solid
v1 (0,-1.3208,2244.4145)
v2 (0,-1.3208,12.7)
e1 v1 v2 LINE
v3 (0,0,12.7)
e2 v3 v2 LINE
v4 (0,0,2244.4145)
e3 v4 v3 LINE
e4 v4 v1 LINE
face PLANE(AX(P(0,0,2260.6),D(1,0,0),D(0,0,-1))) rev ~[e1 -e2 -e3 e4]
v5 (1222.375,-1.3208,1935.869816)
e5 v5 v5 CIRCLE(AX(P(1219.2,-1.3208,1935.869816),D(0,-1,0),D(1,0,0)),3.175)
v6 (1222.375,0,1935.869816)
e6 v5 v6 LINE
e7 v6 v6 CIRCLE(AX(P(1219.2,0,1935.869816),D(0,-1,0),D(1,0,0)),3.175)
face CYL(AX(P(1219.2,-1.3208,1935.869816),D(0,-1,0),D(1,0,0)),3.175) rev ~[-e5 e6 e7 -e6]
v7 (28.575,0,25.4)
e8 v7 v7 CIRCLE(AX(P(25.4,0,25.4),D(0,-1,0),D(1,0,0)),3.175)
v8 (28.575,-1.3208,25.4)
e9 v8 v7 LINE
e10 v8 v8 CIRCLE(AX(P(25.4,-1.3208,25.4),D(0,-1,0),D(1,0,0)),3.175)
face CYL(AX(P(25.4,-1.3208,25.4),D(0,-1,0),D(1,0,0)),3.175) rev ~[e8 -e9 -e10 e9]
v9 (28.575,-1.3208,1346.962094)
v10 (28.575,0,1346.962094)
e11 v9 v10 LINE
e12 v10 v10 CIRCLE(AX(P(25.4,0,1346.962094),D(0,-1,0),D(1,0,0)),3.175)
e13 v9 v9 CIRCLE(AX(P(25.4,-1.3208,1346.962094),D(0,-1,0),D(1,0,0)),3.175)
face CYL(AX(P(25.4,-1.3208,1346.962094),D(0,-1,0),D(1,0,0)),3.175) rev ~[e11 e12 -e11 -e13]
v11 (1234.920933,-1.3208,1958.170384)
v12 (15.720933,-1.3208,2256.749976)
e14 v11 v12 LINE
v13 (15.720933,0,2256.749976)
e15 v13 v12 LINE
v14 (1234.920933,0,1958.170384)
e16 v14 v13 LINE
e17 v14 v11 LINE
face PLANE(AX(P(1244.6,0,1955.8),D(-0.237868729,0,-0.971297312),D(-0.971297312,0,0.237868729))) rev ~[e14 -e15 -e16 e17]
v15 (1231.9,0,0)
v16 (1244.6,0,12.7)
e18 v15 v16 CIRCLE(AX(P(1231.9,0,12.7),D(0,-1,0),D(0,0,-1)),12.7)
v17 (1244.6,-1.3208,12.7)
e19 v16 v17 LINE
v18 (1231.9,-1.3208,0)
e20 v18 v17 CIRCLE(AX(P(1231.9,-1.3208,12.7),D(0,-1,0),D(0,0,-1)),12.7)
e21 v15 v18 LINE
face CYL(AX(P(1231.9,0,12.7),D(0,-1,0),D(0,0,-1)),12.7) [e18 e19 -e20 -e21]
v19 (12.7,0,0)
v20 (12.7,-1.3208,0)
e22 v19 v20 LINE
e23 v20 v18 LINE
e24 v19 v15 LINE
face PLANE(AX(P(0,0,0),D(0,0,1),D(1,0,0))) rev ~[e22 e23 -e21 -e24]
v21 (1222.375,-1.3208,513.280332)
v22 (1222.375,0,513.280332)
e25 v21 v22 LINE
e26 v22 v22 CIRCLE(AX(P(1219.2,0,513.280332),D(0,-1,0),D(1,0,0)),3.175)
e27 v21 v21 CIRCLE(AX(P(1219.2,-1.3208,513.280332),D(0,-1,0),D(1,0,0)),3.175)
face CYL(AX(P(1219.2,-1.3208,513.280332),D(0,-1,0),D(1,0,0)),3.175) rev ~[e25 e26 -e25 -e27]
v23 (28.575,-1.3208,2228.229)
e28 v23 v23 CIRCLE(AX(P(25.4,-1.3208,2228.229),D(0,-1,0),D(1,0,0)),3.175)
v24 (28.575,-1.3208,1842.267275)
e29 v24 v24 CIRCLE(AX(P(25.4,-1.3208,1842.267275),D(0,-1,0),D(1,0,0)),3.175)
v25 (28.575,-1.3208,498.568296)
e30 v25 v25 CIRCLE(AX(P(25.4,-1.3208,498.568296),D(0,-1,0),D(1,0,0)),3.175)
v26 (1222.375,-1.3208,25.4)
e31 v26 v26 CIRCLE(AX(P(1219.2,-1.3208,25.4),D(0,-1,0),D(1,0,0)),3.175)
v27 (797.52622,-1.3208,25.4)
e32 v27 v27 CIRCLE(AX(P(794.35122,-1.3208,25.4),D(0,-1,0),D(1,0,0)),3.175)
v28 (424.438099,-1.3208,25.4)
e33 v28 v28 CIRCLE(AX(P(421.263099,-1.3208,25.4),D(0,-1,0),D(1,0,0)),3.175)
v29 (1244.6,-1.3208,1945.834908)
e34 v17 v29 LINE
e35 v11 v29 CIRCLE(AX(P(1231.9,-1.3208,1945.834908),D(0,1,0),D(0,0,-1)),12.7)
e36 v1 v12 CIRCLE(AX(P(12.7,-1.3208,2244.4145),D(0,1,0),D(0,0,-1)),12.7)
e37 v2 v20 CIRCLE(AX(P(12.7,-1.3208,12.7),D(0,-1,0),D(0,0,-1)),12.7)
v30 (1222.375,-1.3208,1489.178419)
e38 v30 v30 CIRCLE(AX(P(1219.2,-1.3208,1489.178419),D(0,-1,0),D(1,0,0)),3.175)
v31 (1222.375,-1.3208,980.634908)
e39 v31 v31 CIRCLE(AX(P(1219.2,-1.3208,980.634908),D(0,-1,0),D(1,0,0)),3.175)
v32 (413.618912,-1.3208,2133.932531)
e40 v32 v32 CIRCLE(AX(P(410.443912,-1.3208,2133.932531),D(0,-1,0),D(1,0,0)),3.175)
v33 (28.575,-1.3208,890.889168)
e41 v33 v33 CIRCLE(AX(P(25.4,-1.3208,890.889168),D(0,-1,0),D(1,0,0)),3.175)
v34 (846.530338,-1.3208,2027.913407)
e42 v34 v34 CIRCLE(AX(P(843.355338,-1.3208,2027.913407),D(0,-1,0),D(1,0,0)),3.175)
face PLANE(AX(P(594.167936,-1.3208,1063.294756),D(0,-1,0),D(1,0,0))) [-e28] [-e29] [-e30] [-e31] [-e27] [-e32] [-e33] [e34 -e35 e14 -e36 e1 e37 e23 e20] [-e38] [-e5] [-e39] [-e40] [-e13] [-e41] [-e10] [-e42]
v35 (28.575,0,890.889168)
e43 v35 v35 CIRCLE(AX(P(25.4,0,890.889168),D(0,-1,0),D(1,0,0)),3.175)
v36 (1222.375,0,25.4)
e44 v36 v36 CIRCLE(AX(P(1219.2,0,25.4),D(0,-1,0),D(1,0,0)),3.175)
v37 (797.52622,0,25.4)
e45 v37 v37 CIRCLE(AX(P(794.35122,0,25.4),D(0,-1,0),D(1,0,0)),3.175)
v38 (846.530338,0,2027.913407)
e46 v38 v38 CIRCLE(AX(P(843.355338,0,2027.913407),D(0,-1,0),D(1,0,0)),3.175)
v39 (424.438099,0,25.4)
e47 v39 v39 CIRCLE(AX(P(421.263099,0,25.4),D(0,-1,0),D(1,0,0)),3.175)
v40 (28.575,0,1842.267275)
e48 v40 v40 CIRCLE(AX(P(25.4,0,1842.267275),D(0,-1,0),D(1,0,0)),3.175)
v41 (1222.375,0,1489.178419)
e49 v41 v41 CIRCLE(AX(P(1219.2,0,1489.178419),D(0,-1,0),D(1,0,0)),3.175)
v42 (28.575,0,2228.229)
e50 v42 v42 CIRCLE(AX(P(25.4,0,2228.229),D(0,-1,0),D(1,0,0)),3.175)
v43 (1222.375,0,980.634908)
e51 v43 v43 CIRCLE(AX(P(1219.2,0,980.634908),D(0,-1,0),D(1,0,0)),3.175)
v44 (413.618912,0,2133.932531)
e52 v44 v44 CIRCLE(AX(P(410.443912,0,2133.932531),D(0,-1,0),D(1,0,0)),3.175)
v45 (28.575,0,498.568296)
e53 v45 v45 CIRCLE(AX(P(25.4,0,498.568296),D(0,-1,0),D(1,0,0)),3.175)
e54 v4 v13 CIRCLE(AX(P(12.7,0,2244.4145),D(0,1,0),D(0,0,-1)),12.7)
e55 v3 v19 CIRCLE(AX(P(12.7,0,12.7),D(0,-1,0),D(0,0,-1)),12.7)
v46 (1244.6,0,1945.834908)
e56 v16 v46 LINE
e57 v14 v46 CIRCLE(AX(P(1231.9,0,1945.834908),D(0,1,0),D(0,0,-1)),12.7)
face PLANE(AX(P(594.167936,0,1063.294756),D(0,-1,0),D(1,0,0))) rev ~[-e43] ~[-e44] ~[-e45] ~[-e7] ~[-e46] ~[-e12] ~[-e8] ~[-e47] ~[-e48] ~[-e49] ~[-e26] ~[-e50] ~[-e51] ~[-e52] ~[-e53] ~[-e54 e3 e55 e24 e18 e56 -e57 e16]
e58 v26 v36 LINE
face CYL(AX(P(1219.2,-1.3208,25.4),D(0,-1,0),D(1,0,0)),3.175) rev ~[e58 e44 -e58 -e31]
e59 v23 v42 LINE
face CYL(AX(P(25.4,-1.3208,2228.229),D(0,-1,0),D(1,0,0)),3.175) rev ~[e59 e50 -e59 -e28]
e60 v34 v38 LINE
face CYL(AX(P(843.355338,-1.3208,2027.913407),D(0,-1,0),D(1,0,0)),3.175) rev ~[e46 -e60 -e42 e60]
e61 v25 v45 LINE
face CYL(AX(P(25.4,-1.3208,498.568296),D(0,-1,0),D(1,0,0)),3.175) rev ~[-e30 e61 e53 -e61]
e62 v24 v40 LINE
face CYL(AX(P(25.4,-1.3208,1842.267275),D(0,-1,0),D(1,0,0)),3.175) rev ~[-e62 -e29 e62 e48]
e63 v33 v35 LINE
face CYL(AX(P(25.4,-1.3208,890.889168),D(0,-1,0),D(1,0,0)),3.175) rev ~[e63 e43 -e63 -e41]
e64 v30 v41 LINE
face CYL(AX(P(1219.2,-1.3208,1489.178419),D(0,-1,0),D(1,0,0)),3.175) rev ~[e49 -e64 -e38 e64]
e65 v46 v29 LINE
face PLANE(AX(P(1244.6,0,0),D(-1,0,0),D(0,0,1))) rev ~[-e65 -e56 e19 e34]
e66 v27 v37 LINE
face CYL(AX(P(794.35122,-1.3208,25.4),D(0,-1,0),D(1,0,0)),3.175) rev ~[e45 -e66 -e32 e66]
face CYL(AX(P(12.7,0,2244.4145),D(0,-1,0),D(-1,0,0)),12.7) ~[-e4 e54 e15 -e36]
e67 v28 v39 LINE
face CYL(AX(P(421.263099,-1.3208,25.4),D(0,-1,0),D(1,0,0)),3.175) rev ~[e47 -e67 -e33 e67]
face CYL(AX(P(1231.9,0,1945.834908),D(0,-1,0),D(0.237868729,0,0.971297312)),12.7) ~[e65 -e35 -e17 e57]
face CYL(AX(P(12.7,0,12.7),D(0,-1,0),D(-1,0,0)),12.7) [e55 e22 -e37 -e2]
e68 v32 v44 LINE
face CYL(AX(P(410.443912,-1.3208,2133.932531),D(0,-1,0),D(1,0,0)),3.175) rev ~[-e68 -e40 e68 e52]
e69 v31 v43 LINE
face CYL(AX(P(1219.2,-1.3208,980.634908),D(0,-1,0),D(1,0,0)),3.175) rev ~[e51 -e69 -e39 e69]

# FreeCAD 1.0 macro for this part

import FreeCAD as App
import Part
import Sketcher
Q = App.Units.Quantity


def edges_at(feature, points):
    """Names of the edges that pass closest to the given points."""
    edges = feature.Shape.Edges
    near = lambda p: min(range(len(edges)), key=lambda i: edges[i].distToShape(Part.Vertex(*p))[0])
    return sorted({f"Edge{near(p) + 1}" for p in points})

doc = App.newDocument("Part")
body = doc.addObject("PartDesign::Body", "Body")

# Sketch on XZ plane
sketch1 = doc.addObject("Sketcher::SketchObject", "Sketch")
body.addObject(sketch1)
sketch1.AttachmentSupport = (doc.XZ_Plane, [""])
sketch1.MapMode = "FlatFace"
sketch1.addGeometry(Part.LineSegment(App.Vector(0, 2261, 0), App.Vector(0, 0, 0)), False)
sketch1.addGeometry(Part.LineSegment(App.Vector(0, 0, 0), App.Vector(1245, 0, 0)), False)
sketch1.addGeometry(Part.LineSegment(App.Vector(1245, 0, 0), App.Vector(1245, 1956, 0)), False)
sketch1.addGeometry(Part.LineSegment(App.Vector(1245, 1956, 0), App.Vector(0, 2261, 0)), False)
sketch1.addConstraint(Sketcher.Constraint("Coincident", 0, 2, 1, 1))
sketch1.addConstraint(Sketcher.Constraint("Coincident", 1, 2, 2, 1))
sketch1.addConstraint(Sketcher.Constraint("Coincident", 2, 2, 3, 1))
sketch1.addConstraint(Sketcher.Constraint("Coincident", 3, 2, 0, 1))
sketch1.addConstraint(Sketcher.Constraint("Vertical", 0))
sketch1.addConstraint(Sketcher.Constraint("Horizontal", 1))
sketch1.addConstraint(Sketcher.Constraint("Vertical", 2))
sketch1.addConstraint(Sketcher.Constraint("Coincident", 0, 2, -1, 1))
sketch1.addConstraint(Sketcher.Constraint("DistanceX", 1, 1, 1, 2, Q("49 in")))
sketch1.addConstraint(Sketcher.Constraint("DistanceY", 0, 2, 0, 1, Q("89 in")))
sketch1.addConstraint(Sketcher.Constraint("DistanceY", 2, 1, 2, 2, Q("77 in")))
pad1 = doc.addObject("PartDesign::Pad", "Pad")
body.addObject(pad1)
pad1.Profile = sketch1
pad1.Length = Q("0.052 in")

# Sketch on XZ plane
sketch2 = doc.addObject("Sketcher::SketchObject", "Sketch001")
body.addObject(sketch2)
sketch2.AttachmentSupport = (doc.XZ_Plane, [""])
sketch2.MapMode = "FlatFace"
sketch2.AttachmentOffset = App.Placement(App.Vector(0, 0, 0.052 * 25.4), App.Rotation())
sketch2.addGeometry(Part.Circle(App.Vector(25.4, 2228.2, 0), App.Vector(0, 0, 1), 3.2), False)
sketch2.addGeometry(Part.Circle(App.Vector(1219.2, 1935.9, 0), App.Vector(0, 0, 1), 3.2), False)
sketch2.addGeometry(Part.Circle(App.Vector(410.4, 2133.9, 0), App.Vector(0, 0, 1), 3.2), False)
sketch2.addGeometry(Part.Circle(App.Vector(843.4, 2027.9, 0), App.Vector(0, 0, 1), 3.2), False)
sketch2.addGeometry(Part.Circle(App.Vector(1219.2, 25.4, 0), App.Vector(0, 0, 1), 3.2), False)
sketch2.addGeometry(Part.Circle(App.Vector(25.4, 25.4, 0), App.Vector(0, 0, 1), 3.2), False)
sketch2.addGeometry(Part.Circle(App.Vector(421.3, 25.4, 0), App.Vector(0, 0, 1), 3.2), False)
sketch2.addGeometry(Part.Circle(App.Vector(794.4, 25.4, 0), App.Vector(0, 0, 1), 3.2), False)
sketch2.addGeometry(Part.Circle(App.Vector(1219.2, 980.6, 0), App.Vector(0, 0, 1), 3.2), False)
sketch2.addGeometry(Part.Circle(App.Vector(1219.2, 1489.2, 0), App.Vector(0, 0, 1), 3.2), False)
sketch2.addGeometry(Part.Circle(App.Vector(1219.2, 513.3, 0), App.Vector(0, 0, 1), 3.2), False)
sketch2.addGeometry(Part.Circle(App.Vector(25.4, 1347, 0), App.Vector(0, 0, 1), 3.2), False)
sketch2.addGeometry(Part.Circle(App.Vector(25.4, 890.9, 0), App.Vector(0, 0, 1), 3.2), False)
sketch2.addGeometry(Part.Circle(App.Vector(25.4, 498.6, 0), App.Vector(0, 0, 1), 3.2), False)
sketch2.addGeometry(Part.Circle(App.Vector(25.4, 1842.3, 0), App.Vector(0, 0, 1), 3.2), False)
sketch2.addConstraint(Sketcher.Constraint("Equal", 0, 1))
sketch2.addConstraint(Sketcher.Constraint("Equal", 1, 2))
sketch2.addConstraint(Sketcher.Constraint("Equal", 2, 3))
sketch2.addConstraint(Sketcher.Constraint("Equal", 3, 4))
sketch2.addConstraint(Sketcher.Constraint("Equal", 4, 5))
sketch2.addConstraint(Sketcher.Constraint("Equal", 5, 6))
sketch2.addConstraint(Sketcher.Constraint("Equal", 6, 7))
sketch2.addConstraint(Sketcher.Constraint("Equal", 7, 8))
sketch2.addConstraint(Sketcher.Constraint("Equal", 8, 9))
sketch2.addConstraint(Sketcher.Constraint("Equal", 9, 10))
sketch2.addConstraint(Sketcher.Constraint("Equal", 10, 11))
sketch2.addConstraint(Sketcher.Constraint("Equal", 11, 12))
sketch2.addConstraint(Sketcher.Constraint("Equal", 12, 13))
sketch2.addConstraint(Sketcher.Constraint("Equal", 13, 14))
sketch2.addConstraint(Sketcher.Constraint("Horizontal", 4, 3, 5, 3))
sketch2.addConstraint(Sketcher.Constraint("Horizontal", 5, 3, 6, 3))
sketch2.addConstraint(Sketcher.Constraint("Horizontal", 6, 3, 7, 3))
sketch2.addConstraint(Sketcher.Constraint("Vertical", 1, 3, 4, 3))
sketch2.addConstraint(Sketcher.Constraint("Vertical", 0, 3, 5, 3))
sketch2.addConstraint(Sketcher.Constraint("Vertical", 4, 3, 8, 3))
sketch2.addConstraint(Sketcher.Constraint("Vertical", 8, 3, 9, 3))
sketch2.addConstraint(Sketcher.Constraint("Vertical", 9, 3, 10, 3))
sketch2.addConstraint(Sketcher.Constraint("Vertical", 5, 3, 11, 3))
sketch2.addConstraint(Sketcher.Constraint("Vertical", 11, 3, 12, 3))
sketch2.addConstraint(Sketcher.Constraint("Vertical", 12, 3, 13, 3))
sketch2.addConstraint(Sketcher.Constraint("Vertical", 13, 3, 14, 3))
sketch2.addConstraint(Sketcher.Constraint("Diameter", 0, Q("0.25 in")))
sketch2.addConstraint(Sketcher.Constraint("DistanceX", -1, 1, 0, 3, Q("1 in")))
sketch2.addConstraint(Sketcher.Constraint("DistanceX", -1, 1, 1, 3, Q("48 in")))
sketch2.addConstraint(Sketcher.Constraint("DistanceY", -1, 1, 4, 3, Q("1 in")))
sketch2.addConstraint(Sketcher.Constraint("DistanceY", -1, 1, 0, 3, Q("2228.229 mm")))
sketch2.addConstraint(Sketcher.Constraint("DistanceX", -1, 1, 6, 3, Q("421.263099 mm")))
sketch2.addConstraint(Sketcher.Constraint("DistanceY", 8, 3, 3, 3, Q("1047.278499 mm")))
sketch2.addConstraint(Sketcher.Constraint("DistanceY", 13, 3, 11, 3, Q("848.393798 mm")))
sketch2.addConstraint(Sketcher.Constraint("DistanceX", -1, 1, 2, 3, Q("410.443912 mm")))
sketch2.addConstraint(Sketcher.Constraint("DistanceY", -1, 1, 2, 3, Q("2133.932531 mm")))
sketch2.addConstraint(Sketcher.Constraint("DistanceX", -1, 1, 3, 3, Q("843.355338 mm")))
sketch2.addConstraint(Sketcher.Constraint("DistanceX", -1, 1, 7, 3, Q("794.35122 mm")))
sketch2.addConstraint(Sketcher.Constraint("DistanceY", -1, 1, 8, 3, Q("980.634908 mm")))
sketch2.addConstraint(Sketcher.Constraint("DistanceY", -1, 1, 9, 3, Q("1489.178419 mm")))
sketch2.addConstraint(Sketcher.Constraint("DistanceY", -1, 1, 10, 3, Q("513.280332 mm")))
sketch2.addConstraint(Sketcher.Constraint("DistanceY", -1, 1, 12, 3, Q("890.889168 mm")))
sketch2.addConstraint(Sketcher.Constraint("DistanceY", 1, 3, 3, 3, Q("92.043591 mm")))
sketch2.addConstraint(Sketcher.Constraint("DistanceY", 11, 3, 14, 3, Q("495.305181 mm")))
sketch2.addConstraint(Sketcher.Constraint("DistanceY", -1, 1, 11, 3, Q("1346.962094 mm")))
pocket1 = doc.addObject("PartDesign::Pocket", "Pocket")
body.addObject(pocket1)
pocket1.Profile = sketch2
pocket1.Length = Q("1 in")
doc.recompute()

fillet = doc.addObject("PartDesign::Fillet", "Fillet")
body.addObject(fillet)
fillet.Base = (pocket1, edges_at(pocket1, [
    (1244.6, -0.66, 1955.8),
    (0, -0.66, 2260.6),
    (1244.6, -0.66, 0),
    (0, -0.66, 0),
]))
fillet.Radius = Q("0.5 in")

doc.recompute()
